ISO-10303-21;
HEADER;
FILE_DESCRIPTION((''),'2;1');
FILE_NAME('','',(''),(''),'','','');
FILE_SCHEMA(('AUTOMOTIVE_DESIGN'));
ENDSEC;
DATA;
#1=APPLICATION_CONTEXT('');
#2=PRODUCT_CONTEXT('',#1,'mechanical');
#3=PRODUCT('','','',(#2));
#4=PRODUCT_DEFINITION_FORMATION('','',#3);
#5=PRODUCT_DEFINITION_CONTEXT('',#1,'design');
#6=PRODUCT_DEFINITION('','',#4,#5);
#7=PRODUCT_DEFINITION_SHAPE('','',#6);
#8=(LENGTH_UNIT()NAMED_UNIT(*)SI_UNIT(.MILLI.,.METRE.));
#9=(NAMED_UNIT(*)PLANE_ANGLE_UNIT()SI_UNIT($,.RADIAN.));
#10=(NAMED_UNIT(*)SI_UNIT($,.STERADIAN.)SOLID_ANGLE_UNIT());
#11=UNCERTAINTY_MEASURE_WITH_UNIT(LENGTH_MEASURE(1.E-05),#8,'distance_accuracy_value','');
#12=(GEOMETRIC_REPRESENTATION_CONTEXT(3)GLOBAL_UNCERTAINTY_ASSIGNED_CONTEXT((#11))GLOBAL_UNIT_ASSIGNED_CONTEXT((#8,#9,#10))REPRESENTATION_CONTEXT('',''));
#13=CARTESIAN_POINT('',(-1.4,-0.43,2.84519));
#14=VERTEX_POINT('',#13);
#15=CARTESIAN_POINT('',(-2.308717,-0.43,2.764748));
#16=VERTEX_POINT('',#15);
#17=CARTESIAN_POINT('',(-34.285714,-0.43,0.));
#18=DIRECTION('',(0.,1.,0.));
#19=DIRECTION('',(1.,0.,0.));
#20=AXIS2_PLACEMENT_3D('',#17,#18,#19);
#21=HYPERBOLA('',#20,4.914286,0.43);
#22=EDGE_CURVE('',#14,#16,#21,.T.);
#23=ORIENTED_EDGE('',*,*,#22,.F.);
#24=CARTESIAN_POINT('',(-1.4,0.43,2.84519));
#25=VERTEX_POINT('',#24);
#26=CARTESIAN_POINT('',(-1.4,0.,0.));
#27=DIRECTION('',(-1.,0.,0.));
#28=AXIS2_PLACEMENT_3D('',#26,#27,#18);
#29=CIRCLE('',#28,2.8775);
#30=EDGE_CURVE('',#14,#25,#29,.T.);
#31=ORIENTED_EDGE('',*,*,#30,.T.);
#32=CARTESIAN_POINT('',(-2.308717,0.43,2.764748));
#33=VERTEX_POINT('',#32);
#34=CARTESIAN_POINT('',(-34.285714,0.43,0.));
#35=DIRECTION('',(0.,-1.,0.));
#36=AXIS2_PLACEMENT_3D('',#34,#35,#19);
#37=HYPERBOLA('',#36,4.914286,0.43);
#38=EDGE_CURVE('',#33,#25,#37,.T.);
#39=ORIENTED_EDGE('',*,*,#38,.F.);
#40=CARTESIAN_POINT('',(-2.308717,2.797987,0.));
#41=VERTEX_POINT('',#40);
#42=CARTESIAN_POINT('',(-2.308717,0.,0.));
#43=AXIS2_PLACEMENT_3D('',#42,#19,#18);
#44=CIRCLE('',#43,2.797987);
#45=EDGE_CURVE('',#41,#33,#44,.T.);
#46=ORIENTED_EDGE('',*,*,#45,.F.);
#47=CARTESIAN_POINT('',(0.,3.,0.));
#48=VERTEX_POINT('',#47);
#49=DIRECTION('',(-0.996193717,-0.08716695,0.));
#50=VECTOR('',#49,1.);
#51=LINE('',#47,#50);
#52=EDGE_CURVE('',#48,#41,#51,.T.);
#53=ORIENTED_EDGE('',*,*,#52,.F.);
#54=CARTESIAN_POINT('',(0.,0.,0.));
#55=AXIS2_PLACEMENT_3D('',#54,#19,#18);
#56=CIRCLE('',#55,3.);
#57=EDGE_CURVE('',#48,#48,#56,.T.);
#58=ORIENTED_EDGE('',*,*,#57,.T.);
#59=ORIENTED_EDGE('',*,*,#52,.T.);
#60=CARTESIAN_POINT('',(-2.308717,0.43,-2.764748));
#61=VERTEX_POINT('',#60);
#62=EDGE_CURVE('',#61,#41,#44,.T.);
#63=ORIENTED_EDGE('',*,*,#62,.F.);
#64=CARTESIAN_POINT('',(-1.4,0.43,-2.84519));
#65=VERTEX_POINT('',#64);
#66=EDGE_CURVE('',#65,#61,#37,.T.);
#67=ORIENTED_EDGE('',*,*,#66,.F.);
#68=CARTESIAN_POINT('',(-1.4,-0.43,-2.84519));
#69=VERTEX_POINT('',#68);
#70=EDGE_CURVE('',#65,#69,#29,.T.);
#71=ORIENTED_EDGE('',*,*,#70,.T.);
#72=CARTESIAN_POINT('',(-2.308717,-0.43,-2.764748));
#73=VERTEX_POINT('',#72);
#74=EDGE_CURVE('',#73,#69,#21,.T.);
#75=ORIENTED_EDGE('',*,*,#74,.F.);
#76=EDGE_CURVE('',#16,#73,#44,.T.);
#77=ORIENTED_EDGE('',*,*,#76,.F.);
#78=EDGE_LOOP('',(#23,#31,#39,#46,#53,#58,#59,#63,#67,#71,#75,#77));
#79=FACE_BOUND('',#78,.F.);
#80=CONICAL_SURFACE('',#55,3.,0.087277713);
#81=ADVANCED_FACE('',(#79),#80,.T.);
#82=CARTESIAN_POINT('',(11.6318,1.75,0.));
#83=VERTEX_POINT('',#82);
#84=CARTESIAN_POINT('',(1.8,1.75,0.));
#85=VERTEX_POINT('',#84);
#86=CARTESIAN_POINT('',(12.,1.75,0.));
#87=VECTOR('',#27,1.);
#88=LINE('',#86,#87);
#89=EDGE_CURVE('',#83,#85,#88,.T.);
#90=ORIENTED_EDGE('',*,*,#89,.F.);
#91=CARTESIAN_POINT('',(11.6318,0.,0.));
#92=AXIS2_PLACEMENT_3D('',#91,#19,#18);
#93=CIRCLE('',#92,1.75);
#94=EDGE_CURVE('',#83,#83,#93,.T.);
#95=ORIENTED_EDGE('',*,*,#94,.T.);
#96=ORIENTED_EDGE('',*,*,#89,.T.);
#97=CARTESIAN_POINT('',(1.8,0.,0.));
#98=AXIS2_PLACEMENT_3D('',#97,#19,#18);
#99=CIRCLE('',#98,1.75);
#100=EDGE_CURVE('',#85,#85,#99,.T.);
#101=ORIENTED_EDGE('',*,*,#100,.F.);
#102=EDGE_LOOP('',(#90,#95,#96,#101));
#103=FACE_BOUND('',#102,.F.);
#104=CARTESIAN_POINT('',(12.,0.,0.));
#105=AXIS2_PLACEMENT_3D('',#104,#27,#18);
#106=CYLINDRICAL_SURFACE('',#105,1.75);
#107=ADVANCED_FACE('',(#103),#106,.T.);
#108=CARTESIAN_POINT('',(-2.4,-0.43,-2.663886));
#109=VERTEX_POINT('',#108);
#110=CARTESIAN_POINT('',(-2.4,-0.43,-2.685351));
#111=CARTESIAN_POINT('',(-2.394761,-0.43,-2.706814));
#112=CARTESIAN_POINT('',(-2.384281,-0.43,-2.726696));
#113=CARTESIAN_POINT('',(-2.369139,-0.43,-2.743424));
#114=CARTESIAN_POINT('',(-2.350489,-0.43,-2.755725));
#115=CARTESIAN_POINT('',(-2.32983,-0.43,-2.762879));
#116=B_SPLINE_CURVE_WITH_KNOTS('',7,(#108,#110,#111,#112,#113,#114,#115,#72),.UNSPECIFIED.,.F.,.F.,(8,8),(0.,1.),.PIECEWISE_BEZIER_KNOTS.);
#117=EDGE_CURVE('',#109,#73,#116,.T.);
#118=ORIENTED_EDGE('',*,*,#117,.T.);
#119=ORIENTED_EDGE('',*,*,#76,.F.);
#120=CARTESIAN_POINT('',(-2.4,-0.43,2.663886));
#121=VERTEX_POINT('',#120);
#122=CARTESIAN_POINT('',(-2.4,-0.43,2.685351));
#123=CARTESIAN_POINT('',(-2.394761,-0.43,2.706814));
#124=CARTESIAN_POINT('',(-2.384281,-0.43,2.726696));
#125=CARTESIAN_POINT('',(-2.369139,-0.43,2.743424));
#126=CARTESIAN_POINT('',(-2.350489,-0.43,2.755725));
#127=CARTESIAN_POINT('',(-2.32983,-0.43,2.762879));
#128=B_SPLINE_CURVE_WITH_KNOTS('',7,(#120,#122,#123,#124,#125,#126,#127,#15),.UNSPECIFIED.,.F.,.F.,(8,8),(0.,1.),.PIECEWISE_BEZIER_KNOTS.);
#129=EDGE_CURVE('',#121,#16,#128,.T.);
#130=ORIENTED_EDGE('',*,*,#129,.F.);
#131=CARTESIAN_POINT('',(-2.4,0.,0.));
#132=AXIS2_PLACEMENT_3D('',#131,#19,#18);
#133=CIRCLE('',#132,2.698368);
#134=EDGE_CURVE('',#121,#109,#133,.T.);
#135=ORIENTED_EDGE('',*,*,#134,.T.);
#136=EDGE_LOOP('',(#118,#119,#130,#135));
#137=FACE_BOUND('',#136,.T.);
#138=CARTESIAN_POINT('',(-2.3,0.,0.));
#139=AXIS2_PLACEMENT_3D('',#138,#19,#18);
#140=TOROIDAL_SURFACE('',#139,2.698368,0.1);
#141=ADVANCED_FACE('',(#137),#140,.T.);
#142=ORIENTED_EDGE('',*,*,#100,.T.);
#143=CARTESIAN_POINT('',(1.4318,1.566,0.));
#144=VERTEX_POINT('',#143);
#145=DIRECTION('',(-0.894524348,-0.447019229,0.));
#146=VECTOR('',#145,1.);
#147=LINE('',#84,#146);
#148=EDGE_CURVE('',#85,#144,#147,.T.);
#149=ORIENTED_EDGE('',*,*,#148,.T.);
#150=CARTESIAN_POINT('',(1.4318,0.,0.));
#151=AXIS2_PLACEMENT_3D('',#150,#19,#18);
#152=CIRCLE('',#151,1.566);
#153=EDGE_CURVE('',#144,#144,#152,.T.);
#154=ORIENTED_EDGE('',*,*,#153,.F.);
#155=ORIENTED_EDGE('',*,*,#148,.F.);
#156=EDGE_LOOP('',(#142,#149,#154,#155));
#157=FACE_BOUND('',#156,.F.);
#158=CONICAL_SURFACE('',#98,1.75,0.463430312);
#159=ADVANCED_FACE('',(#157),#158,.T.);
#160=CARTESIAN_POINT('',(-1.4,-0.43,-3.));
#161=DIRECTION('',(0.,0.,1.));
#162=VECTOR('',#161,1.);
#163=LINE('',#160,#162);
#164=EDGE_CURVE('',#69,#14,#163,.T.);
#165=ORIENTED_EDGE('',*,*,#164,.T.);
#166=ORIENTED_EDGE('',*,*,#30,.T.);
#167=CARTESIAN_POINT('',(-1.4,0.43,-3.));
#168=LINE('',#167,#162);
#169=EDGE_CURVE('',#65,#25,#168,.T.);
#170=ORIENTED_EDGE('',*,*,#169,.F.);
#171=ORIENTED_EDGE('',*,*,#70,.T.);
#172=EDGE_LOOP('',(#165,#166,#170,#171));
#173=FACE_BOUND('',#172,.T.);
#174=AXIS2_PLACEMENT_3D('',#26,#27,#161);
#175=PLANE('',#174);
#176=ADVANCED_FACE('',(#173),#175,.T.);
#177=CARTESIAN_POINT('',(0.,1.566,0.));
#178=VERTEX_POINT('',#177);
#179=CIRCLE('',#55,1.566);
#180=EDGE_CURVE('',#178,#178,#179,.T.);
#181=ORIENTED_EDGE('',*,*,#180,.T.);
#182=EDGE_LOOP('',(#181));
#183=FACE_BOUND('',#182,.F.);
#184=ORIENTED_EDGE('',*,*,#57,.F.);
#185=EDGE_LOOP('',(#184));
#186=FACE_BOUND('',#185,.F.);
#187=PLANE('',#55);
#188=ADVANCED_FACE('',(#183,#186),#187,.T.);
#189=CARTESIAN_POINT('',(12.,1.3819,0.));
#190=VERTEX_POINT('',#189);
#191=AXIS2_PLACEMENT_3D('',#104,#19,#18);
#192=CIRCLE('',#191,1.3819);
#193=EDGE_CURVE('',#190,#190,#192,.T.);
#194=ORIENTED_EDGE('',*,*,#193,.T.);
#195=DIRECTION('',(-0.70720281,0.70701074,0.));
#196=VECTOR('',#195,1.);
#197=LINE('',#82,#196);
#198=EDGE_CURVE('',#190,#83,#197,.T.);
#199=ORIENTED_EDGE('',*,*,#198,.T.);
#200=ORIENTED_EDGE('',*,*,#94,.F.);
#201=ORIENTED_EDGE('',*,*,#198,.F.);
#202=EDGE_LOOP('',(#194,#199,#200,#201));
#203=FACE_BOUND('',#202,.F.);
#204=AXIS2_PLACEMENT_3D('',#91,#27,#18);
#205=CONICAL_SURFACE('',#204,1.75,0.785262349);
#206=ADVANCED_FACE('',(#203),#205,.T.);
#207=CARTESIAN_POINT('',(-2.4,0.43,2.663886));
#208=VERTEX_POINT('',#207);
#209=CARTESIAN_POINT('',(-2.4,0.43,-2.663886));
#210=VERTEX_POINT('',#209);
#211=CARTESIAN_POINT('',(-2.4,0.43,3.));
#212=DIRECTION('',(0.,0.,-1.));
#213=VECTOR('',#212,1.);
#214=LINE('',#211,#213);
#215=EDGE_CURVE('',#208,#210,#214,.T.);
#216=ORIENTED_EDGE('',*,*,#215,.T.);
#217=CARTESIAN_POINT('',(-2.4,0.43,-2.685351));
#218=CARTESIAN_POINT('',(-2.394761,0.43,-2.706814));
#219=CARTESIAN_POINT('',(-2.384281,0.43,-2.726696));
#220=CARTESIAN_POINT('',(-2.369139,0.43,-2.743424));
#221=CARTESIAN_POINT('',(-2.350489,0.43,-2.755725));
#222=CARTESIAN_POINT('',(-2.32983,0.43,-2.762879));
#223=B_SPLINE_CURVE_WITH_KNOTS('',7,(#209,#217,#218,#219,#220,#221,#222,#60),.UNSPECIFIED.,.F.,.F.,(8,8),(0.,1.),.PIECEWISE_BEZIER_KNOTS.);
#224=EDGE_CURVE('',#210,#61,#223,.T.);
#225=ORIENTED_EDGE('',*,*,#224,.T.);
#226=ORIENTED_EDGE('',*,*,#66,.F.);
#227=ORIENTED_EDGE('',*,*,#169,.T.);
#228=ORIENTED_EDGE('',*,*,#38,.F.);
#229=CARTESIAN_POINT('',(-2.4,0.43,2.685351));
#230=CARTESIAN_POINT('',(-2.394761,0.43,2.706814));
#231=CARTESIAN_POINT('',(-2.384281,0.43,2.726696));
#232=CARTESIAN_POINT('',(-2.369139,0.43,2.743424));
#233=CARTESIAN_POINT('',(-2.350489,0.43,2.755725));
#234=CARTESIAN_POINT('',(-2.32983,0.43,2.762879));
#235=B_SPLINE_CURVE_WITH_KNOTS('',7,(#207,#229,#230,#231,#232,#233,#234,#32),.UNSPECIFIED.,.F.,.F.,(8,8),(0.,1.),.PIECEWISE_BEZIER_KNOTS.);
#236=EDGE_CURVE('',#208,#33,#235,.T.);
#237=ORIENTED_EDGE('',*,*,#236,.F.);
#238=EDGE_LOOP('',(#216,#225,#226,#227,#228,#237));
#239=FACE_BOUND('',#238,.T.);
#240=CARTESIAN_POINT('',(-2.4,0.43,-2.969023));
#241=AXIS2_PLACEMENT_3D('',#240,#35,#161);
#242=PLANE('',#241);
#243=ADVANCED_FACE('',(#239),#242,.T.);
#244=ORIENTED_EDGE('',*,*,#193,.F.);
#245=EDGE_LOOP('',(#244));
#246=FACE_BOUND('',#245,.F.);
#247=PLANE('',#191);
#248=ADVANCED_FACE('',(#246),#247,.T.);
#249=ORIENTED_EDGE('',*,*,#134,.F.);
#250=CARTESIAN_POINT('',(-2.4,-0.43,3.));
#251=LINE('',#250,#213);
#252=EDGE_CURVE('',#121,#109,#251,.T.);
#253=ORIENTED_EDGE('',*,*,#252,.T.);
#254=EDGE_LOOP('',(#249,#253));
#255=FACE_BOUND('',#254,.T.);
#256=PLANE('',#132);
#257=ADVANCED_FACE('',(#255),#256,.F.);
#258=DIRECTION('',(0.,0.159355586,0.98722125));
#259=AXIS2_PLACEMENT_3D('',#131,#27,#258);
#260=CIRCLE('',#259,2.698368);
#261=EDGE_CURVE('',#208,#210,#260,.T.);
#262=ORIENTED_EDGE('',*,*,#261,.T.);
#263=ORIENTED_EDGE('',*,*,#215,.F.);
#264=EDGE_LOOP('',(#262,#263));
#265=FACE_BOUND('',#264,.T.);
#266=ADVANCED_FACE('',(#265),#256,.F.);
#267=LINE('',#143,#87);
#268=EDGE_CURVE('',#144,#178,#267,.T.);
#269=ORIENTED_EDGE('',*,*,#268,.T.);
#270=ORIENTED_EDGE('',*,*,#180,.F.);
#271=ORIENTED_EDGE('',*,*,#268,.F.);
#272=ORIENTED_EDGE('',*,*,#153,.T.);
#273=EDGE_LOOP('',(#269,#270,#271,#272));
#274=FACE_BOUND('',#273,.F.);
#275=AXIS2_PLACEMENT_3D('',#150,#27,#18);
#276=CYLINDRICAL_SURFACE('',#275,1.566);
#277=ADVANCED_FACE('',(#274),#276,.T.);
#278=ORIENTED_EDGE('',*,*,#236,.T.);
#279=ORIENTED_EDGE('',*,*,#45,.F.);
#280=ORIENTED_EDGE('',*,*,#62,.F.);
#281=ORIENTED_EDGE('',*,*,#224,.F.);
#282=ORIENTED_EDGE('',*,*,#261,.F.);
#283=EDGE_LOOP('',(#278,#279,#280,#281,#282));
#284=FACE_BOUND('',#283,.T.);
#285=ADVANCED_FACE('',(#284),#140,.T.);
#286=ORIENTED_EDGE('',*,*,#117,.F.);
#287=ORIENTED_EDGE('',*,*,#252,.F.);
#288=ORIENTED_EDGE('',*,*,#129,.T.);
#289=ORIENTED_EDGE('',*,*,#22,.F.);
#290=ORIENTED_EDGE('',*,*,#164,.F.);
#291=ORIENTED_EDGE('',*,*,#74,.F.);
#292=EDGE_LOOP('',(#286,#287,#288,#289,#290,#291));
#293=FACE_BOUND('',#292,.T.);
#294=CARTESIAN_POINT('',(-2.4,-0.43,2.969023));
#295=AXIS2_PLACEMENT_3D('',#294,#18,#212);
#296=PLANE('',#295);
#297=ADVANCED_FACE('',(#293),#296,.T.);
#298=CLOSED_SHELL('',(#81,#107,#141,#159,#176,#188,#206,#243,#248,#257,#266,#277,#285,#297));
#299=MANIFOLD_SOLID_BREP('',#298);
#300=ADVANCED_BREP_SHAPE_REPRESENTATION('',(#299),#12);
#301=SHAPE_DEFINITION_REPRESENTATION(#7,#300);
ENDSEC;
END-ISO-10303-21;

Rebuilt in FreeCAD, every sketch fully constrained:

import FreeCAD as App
import Part
import Sketcher

V = App.Vector
Q = App.Units.Quantity


def edges_at(feature, points):
    """Names of the edges that pass closest to the given points."""
    edges = feature.Shape.Edges
    near = lambda p: min(range(len(edges)), key=lambda i: edges[i].distToShape(Part.Vertex(*p))[0])
    return sorted({f"Edge{near(p) + 1}" for p in points})

doc = App.newDocument("Part")
body = doc.addObject("PartDesign::Body", "Body")

# Sketch on XY plane
sketch1 = body.newObject("Sketcher::SketchObject", "Sketch")
sketch1.AttachmentSupport = (doc.getObject("XY_Plane"), [""])
sketch1.MapMode = "FlatFace"
sketch1.addGeometry([
    Part.LineSegment(V(-2.4, 2.79, 0), V(-2.4, 0, 0)),  # 0
    Part.LineSegment(V(-2.4, 0, 0), V(12, 0, 0)),  # 1
    Part.LineSegment(V(12, 0, 0), V(12, 1.75, 0)),  # 2
    Part.LineSegment(V(12, 1.75, 0), V(1.8, 1.75, 0)),  # 3
    Part.LineSegment(V(1.8, 1.75, 0), V(1.4318, 1.566, 0)),  # 4
    Part.LineSegment(V(1.4318, 1.566, 0), V(0, 1.566, 0)),  # 5
    Part.LineSegment(V(0, 1.566, 0), V(0, 3, 0)),  # 6
    Part.LineSegment(V(0, 3, 0), V(-2.4, 2.79, 0)),  # 7
], False)
sketch1.addConstraint([
    Sketcher.Constraint("Coincident", 0, 2, 1, 1),
    Sketcher.Constraint("Coincident", 1, 2, 2, 1),
    Sketcher.Constraint("Coincident", 2, 2, 3, 1),
    Sketcher.Constraint("Coincident", 3, 2, 4, 1),
    Sketcher.Constraint("Coincident", 4, 2, 5, 1),
    Sketcher.Constraint("Coincident", 5, 2, 6, 1),
    Sketcher.Constraint("Coincident", 6, 2, 7, 1),
    Sketcher.Constraint("Coincident", 7, 2, 0, 1),
    Sketcher.Constraint("Vertical", 0),
    Sketcher.Constraint("Horizontal", 1),
    Sketcher.Constraint("Vertical", 2),
    Sketcher.Constraint("Horizontal", 3),
    Sketcher.Constraint("Horizontal", 5),
    Sketcher.Constraint("Vertical", 6),
    Sketcher.Constraint("PointOnObject", 0, 2, -1),
    Sketcher.Constraint("PointOnObject", 5, 2, -2),
    Sketcher.Constraint("DistanceX", 3, 2, 3, 1, Q("10.2 mm")),
    Sketcher.Constraint("DistanceX", -1, 1, 1, 2, Q("12 mm")),
    Sketcher.Constraint("DistanceX", 0, 2, -1, 1, Q("2.4 mm")),
    Sketcher.Constraint("Angle", 7, Q("-174.9994 deg")),
    Sketcher.Constraint("DistanceY", -1, 1, 6, 2, Q("3 mm")),
    Sketcher.Constraint("DistanceY", 2, 1, 2, 2, Q("1.75 mm")),
    Sketcher.Constraint("DistanceX", 4, 2, 3, 2, Q("0.3682 mm")),
    Sketcher.Constraint("DistanceY", 6, 1, 6, 2, Q("1.434 mm")),
])
revolution = body.newObject("PartDesign::Revolution", "Revolution")
revolution.Profile = sketch1
revolution.ReferenceAxis = (sketch1, ["H_Axis"])
revolution.Angle = 360
doc.recompute()

fillet = body.newObject("PartDesign::Fillet", "Fillet")
fillet.Base = (revolution, edges_at(revolution, [(-2.4, -2.79, 0)]))
fillet.Radius = 0.1

# Sketch on YZ plane
sketch2 = body.newObject("Sketcher::SketchObject", "Sketch001")
sketch2.AttachmentSupport = (doc.getObject("YZ_Plane"), [""])
sketch2.MapMode = "FlatFace"
sketch2.AttachmentOffset = App.Placement(V(0, 0, -2.4), App.Rotation())
sketch2.addGeometry([
    Part.LineSegment(V(-0.43, 3, 0), V(0.43, 3, 0)),
    Part.LineSegment(V(0.43, 3, 0), V(0.43, -3, 0)),
    Part.LineSegment(V(0.43, -3, 0), V(-0.43, -3, 0)),
    Part.LineSegment(V(-0.43, -3, 0), V(-0.43, 3, 0)),
], False)
sketch2.addConstraint([
    Sketcher.Constraint("Coincident", 0, 2, 1, 1),
    Sketcher.Constraint("Coincident", 1, 2, 2, 1),
    Sketcher.Constraint("Coincident", 2, 2, 3, 1),
    Sketcher.Constraint("Coincident", 3, 2, 0, 1),
    Sketcher.Constraint("Horizontal", 0),
    Sketcher.Constraint("Vertical", 1),
    Sketcher.Constraint("Horizontal", 2),
    Sketcher.Constraint("Vertical", 3),
    Sketcher.Constraint("Symmetric", 0, 2, 2, 2, -1, 1),
    Sketcher.Constraint("DistanceY", 1, 2, 1, 1, Q("6 mm")),
    Sketcher.Constraint("DistanceX", 0, 1, 0, 2, Q("0.86 mm")),
])
pocket1 = body.newObject("PartDesign::Pocket", "Pocket")
pocket1.Profile = sketch2
pocket1.Length = 1
pocket1.Reversed = True
doc.recompute()

chamfer = body.newObject("PartDesign::Chamfer", "Chamfer")
chamfer.Base = (pocket1, edges_at(pocket1, [(12, -1.75, 0)]))
chamfer.ChamferType = "Two distances"
chamfer.Size = 0.3681
chamfer.Size2 = 0.3682

doc.recompute()
